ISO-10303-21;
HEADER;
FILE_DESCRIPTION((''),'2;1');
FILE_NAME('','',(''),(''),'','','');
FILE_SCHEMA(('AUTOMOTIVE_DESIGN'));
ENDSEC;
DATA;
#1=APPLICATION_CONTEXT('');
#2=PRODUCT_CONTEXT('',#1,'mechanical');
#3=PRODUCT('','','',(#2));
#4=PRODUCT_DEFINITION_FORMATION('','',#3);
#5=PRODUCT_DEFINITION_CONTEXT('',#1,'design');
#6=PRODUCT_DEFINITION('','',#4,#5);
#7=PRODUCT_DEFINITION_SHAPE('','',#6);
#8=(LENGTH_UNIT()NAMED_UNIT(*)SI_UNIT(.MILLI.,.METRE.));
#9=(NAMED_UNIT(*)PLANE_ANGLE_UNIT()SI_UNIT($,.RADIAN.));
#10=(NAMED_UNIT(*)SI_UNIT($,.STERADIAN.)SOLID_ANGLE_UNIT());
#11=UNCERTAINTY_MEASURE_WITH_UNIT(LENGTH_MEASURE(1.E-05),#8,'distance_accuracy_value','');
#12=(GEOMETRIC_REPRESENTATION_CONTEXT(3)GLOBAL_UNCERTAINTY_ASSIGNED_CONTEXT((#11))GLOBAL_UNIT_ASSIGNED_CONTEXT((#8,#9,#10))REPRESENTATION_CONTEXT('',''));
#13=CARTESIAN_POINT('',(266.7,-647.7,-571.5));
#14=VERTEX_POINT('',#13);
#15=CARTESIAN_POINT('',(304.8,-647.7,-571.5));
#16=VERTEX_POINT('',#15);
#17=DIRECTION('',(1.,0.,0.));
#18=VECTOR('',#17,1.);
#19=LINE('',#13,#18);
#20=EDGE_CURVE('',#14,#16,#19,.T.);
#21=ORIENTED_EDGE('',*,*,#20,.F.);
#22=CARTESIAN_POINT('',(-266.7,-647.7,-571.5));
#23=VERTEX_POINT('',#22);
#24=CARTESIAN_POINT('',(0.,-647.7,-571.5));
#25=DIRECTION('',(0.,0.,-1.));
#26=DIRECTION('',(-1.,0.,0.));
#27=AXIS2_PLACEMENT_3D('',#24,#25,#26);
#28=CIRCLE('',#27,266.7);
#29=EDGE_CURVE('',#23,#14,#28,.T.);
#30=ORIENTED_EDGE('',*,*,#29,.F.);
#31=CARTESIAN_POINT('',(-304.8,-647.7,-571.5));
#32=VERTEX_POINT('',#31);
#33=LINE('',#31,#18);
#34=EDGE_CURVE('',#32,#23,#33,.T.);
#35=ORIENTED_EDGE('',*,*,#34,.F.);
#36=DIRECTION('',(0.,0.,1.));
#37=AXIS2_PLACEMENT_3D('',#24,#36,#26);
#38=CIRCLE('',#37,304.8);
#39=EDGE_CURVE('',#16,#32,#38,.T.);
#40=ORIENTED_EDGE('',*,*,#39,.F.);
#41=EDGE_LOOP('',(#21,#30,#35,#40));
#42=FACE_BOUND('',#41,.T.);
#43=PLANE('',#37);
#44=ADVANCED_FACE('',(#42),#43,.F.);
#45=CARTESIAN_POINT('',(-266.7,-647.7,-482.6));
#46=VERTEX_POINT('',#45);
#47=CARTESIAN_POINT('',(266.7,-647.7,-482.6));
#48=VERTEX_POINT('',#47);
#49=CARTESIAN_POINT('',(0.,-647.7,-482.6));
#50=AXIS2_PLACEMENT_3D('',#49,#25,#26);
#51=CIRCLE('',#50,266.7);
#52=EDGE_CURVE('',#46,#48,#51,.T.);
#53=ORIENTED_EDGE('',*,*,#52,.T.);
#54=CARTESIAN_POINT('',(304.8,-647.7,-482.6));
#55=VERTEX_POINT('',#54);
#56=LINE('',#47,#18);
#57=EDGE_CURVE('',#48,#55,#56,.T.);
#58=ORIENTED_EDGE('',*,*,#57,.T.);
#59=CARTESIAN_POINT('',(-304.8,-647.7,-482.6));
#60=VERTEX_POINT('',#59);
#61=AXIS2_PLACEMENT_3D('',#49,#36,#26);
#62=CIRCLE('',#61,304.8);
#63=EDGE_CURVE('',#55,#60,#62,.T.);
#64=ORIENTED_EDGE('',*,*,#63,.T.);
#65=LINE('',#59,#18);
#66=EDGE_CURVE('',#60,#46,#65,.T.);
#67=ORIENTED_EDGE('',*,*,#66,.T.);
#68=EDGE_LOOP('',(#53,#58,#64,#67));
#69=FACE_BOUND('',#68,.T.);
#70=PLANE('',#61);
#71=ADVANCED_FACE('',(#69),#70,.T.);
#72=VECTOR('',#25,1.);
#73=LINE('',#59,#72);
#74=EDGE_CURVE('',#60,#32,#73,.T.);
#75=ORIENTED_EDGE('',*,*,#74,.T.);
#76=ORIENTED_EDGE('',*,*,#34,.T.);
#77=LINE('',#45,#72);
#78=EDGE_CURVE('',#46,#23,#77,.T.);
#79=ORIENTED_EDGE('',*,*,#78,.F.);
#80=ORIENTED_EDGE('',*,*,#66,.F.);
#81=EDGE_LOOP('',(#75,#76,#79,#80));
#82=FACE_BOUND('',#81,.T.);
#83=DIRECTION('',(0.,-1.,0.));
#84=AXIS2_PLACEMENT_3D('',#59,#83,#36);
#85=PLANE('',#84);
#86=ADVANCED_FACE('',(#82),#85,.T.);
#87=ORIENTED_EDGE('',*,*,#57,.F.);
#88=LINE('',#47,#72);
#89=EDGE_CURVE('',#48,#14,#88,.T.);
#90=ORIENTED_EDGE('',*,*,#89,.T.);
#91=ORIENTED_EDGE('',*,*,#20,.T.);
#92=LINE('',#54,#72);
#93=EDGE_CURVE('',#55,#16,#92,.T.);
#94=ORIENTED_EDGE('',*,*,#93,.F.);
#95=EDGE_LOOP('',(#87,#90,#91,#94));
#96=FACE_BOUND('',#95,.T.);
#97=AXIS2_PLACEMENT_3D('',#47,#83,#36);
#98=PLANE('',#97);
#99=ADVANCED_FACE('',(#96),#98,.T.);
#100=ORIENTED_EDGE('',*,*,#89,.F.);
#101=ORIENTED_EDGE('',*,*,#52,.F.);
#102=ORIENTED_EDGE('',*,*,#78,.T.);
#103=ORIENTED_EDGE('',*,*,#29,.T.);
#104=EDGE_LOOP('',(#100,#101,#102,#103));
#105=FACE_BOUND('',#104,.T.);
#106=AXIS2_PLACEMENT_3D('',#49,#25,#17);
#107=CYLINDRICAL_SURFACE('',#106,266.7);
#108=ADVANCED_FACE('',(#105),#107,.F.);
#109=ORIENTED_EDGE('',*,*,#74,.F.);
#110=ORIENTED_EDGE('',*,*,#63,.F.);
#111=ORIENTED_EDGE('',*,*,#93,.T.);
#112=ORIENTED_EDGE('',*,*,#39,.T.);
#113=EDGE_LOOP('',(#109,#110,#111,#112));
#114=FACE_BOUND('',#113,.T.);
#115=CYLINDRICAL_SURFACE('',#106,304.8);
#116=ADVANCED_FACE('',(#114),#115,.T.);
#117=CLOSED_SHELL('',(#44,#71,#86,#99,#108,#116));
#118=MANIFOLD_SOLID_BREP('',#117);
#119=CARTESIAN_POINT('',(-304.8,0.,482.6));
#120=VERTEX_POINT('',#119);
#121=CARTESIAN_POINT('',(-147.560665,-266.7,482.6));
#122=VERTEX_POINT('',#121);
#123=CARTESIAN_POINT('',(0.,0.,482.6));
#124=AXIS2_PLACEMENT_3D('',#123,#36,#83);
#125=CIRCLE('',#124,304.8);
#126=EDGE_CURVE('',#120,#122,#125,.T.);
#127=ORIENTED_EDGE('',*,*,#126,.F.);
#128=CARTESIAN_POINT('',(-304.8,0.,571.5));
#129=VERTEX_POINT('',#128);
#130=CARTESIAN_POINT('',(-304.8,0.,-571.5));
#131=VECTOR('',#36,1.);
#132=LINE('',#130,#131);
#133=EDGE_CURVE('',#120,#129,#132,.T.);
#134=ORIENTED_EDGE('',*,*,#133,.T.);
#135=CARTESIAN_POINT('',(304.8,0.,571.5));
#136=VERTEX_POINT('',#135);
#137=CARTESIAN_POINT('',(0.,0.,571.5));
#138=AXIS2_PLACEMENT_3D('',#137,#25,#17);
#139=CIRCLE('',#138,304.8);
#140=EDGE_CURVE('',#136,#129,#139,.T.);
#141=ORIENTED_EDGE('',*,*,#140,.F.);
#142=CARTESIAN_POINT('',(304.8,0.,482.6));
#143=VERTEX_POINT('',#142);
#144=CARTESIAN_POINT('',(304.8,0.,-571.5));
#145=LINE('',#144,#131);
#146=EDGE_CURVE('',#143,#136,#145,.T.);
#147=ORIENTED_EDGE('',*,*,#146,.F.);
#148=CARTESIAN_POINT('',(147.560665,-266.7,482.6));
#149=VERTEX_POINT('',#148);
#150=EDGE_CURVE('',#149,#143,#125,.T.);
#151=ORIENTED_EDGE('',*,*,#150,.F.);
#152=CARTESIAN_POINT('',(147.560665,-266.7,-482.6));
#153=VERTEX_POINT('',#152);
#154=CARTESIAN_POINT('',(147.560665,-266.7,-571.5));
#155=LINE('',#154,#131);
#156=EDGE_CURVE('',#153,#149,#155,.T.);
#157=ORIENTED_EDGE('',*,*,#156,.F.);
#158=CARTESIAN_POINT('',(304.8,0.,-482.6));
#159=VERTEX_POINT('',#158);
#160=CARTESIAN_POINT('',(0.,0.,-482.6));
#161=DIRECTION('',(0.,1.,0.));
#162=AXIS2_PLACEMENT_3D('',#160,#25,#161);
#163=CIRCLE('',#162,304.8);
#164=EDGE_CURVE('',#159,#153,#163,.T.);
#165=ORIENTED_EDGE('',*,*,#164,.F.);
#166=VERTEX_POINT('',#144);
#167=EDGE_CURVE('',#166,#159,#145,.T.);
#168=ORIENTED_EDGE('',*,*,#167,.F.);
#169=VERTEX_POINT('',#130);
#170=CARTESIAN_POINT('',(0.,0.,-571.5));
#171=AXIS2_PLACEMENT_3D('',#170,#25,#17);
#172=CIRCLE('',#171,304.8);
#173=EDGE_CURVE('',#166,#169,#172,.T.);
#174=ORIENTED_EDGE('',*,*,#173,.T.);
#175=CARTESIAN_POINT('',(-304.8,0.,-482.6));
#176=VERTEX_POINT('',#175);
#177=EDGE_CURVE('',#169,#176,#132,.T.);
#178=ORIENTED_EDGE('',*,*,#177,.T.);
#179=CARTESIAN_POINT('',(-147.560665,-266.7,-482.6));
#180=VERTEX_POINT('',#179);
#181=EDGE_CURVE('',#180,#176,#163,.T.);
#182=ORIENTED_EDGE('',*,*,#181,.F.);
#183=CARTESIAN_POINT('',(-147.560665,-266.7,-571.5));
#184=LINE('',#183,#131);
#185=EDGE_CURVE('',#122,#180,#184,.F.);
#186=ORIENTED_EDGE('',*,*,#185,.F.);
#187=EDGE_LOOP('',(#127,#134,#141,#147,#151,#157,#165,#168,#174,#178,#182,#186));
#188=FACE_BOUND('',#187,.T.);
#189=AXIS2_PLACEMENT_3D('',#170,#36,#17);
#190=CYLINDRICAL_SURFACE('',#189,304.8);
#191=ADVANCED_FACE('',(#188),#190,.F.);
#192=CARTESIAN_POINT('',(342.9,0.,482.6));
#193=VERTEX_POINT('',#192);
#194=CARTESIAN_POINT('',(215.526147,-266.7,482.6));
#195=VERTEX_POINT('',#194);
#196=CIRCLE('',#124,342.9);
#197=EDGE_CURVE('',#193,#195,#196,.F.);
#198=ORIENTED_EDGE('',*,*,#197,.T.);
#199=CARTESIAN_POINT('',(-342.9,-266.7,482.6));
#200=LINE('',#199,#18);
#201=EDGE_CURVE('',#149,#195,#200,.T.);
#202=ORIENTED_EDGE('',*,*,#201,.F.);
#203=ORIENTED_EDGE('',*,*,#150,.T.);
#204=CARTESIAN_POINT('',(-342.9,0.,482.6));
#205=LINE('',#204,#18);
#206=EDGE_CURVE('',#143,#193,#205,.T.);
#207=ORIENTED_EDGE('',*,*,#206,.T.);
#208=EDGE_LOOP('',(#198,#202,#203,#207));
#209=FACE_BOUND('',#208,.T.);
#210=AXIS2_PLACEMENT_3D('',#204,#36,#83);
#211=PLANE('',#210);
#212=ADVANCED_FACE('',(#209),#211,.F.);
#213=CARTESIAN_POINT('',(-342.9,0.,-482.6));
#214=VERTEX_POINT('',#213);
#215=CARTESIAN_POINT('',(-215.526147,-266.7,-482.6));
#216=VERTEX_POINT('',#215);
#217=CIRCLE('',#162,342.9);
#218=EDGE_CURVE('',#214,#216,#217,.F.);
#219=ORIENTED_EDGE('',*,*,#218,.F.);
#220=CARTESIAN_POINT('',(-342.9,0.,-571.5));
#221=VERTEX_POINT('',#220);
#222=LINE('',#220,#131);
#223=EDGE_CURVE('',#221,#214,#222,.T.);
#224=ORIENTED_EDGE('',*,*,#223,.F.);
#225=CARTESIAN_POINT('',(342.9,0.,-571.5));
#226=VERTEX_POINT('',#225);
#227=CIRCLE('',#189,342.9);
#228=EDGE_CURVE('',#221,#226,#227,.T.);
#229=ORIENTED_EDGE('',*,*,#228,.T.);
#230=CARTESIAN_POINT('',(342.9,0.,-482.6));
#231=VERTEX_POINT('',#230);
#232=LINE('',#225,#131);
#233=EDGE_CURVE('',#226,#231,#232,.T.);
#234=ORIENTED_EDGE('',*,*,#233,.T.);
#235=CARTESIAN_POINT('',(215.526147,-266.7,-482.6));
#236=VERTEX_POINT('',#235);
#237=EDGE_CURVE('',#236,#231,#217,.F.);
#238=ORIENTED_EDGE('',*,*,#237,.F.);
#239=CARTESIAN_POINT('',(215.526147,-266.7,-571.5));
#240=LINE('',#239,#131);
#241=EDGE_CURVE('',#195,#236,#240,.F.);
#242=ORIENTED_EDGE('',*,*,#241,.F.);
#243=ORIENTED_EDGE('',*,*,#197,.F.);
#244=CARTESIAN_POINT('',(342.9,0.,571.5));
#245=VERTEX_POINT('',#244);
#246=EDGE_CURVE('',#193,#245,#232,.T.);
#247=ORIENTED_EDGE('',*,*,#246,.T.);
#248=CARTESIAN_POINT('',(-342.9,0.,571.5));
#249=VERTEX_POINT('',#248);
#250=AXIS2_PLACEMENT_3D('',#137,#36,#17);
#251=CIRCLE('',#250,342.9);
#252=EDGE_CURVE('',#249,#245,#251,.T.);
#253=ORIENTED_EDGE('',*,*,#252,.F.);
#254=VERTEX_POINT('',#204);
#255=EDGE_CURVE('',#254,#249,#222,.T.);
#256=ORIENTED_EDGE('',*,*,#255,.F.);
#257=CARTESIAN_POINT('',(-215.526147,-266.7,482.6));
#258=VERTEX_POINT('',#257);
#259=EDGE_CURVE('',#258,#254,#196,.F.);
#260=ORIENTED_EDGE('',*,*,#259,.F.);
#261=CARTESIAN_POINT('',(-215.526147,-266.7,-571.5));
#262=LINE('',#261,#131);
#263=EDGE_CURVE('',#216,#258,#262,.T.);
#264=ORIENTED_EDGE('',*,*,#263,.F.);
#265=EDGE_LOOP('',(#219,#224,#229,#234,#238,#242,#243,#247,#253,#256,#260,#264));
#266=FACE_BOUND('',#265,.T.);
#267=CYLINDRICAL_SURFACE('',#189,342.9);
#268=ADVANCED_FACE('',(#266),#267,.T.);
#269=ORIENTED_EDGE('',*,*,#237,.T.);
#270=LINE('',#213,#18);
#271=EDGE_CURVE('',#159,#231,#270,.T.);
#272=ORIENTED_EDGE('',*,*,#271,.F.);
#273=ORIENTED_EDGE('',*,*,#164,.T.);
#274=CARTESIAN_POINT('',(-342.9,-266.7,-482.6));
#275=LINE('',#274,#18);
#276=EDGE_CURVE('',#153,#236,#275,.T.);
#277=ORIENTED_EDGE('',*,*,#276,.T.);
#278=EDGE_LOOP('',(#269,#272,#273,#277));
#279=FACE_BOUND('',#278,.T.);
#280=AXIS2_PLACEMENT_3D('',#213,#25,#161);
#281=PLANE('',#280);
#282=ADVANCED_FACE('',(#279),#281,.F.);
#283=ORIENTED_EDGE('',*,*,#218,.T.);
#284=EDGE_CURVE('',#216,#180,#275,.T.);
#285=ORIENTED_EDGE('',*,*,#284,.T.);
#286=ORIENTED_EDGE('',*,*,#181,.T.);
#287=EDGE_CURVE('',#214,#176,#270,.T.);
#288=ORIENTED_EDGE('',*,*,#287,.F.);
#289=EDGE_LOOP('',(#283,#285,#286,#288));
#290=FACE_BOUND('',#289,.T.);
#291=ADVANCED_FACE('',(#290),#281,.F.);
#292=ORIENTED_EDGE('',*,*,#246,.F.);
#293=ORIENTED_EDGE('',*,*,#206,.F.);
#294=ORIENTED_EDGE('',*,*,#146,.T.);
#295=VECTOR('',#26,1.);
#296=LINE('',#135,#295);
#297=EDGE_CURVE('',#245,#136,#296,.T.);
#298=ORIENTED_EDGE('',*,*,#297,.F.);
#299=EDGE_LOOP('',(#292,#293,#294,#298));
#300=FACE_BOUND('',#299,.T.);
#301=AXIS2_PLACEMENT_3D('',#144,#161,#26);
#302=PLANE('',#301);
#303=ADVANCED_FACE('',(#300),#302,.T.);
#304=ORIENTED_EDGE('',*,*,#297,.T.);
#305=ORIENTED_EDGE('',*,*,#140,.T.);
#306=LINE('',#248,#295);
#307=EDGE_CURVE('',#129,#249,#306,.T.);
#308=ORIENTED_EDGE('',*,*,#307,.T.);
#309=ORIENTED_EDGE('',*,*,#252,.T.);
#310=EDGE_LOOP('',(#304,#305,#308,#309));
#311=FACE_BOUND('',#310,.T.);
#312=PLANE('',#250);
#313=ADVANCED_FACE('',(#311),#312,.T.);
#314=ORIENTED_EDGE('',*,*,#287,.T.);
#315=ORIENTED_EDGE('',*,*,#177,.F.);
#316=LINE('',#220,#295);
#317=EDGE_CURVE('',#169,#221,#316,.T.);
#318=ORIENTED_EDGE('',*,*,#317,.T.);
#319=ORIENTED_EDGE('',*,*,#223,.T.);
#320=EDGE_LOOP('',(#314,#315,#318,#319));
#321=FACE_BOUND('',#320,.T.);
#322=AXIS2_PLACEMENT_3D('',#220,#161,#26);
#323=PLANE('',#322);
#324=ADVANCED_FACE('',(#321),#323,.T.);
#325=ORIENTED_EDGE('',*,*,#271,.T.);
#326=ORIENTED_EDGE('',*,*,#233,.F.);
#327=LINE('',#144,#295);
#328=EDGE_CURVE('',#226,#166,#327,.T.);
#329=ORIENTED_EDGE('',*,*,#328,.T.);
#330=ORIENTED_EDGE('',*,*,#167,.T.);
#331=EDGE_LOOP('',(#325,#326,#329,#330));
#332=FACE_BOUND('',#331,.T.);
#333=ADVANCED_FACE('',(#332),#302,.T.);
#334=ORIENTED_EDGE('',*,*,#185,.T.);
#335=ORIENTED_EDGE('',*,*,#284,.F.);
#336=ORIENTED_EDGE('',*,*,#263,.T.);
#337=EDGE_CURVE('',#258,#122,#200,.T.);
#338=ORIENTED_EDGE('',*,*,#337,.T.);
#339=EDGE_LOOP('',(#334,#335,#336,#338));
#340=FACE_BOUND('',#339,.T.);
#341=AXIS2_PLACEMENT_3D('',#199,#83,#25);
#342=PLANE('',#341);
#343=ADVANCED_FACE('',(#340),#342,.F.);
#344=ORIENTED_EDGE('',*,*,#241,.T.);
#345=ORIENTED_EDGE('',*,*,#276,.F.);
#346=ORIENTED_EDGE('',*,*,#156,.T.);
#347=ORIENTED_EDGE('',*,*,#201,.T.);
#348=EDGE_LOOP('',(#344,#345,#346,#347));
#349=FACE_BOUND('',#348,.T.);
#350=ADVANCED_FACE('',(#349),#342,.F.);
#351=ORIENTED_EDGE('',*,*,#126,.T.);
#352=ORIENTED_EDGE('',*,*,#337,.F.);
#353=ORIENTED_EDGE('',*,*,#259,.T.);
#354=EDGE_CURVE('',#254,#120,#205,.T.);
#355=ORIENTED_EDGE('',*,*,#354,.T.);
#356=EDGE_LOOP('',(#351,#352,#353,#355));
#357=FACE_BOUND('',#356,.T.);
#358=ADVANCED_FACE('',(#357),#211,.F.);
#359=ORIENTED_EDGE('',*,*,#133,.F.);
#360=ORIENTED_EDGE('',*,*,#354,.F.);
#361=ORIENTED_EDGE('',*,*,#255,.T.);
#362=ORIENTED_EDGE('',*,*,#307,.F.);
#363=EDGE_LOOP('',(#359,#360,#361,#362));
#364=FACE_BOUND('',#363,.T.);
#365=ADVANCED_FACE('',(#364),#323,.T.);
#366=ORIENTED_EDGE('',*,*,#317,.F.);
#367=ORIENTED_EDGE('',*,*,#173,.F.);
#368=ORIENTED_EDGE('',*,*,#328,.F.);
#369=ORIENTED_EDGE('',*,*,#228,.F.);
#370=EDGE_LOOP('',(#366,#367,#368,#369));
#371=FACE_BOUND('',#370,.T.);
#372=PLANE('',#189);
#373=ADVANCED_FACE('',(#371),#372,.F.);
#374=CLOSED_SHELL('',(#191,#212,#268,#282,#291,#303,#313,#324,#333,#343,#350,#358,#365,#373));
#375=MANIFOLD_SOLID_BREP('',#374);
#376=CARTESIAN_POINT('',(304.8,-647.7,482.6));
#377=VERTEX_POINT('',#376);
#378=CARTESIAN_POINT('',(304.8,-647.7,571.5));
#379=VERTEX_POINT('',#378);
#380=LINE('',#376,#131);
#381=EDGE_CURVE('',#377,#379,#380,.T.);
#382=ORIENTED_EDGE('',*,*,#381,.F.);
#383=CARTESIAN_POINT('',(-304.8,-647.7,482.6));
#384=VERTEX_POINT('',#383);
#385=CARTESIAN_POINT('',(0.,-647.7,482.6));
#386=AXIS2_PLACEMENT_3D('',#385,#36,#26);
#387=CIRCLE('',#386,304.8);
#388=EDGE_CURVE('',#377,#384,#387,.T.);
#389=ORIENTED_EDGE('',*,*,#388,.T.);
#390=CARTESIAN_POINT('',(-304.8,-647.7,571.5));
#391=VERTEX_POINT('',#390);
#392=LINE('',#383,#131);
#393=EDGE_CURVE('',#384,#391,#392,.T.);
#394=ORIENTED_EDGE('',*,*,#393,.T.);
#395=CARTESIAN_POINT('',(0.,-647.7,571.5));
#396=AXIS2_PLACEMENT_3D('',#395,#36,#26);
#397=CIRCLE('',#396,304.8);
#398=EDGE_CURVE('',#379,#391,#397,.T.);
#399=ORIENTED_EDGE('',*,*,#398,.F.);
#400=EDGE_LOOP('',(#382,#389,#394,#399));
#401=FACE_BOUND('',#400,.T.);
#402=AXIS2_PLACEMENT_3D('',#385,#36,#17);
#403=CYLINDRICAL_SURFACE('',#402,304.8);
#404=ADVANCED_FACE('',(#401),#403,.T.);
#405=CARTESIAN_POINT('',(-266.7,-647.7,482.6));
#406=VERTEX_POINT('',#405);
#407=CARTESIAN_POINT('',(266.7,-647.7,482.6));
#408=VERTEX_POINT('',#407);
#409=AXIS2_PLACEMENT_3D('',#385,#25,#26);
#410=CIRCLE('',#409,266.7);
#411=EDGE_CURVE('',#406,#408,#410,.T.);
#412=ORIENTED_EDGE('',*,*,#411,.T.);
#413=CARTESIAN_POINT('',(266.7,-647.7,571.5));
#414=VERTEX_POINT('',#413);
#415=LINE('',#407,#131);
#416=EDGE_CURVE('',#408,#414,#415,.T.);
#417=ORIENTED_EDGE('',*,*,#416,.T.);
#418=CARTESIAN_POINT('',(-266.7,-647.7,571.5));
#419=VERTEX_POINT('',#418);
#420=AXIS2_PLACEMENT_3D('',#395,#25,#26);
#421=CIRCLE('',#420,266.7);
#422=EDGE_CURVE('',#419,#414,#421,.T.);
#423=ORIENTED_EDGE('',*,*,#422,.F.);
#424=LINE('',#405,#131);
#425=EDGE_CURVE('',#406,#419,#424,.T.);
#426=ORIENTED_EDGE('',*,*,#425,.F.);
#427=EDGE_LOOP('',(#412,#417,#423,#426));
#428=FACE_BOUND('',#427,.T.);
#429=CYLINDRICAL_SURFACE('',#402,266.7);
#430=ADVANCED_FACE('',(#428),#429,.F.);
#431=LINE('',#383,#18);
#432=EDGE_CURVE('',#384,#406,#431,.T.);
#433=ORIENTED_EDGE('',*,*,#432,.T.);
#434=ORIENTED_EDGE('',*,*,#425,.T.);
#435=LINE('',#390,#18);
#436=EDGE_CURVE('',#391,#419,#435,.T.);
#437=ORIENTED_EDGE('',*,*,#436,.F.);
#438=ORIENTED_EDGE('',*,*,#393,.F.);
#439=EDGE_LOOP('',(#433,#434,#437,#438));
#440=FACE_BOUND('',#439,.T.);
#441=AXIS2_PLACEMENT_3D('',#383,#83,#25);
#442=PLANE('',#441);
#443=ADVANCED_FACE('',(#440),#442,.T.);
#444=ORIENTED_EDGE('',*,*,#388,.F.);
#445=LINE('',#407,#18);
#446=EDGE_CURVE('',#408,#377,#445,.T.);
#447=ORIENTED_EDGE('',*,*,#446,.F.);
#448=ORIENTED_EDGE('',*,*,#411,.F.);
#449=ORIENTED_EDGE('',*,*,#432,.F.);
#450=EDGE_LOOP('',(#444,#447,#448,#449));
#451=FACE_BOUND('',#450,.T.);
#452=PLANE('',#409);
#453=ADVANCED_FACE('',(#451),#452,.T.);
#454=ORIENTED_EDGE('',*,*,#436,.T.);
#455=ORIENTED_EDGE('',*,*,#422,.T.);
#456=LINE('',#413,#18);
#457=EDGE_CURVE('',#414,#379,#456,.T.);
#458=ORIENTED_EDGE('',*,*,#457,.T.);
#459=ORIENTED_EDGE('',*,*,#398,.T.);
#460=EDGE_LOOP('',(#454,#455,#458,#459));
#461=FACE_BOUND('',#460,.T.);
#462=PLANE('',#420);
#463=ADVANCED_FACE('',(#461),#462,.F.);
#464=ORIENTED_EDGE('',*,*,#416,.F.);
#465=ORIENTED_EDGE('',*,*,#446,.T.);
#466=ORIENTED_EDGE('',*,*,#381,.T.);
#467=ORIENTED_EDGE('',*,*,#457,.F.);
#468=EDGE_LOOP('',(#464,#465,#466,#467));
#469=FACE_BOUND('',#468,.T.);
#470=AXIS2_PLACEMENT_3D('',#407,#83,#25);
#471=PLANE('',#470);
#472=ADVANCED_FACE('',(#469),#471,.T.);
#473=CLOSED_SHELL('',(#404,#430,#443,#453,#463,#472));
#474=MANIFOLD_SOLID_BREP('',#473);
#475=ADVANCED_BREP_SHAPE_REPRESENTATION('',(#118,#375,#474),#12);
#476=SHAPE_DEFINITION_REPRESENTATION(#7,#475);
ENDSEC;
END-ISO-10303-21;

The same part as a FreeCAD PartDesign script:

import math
import FreeCAD as App
import Part
import Sketcher

V = App.Vector
Q = App.Units.Quantity

doc = App.newDocument("Part")
body = doc.addObject("PartDesign::Body", "Body")

sketch1 = body.newObject("Sketcher::SketchObject", "Sketch")
sketch1.AttachmentSupport = (doc.getObject("XY_Plane"), [""])
sketch1.MapMode = "FlatFace"
sketch1.addGeometry([
    Part.LineSegment(V(-305, 0, 0), V(-343, 0, 0)),
    Part.ArcOfCircle(Part.Circle(V(0, 0, 0), V(0, 0, 1), 343), math.radians(180), math.radians(360)),
    Part.LineSegment(V(343, 0, 0), V(305, 0, 0)),
    Part.ArcOfCircle(Part.Circle(V(0, 0, 0), V(0, 0, 1), 305), math.radians(180), math.radians(360)),
], False)
sketch1.addConstraint([
    Sketcher.Constraint("Coincident", 0, 2, 1, 1),
    Sketcher.Constraint("Coincident", 1, 2, 2, 1),
    Sketcher.Constraint("Coincident", 2, 2, 3, 2),
    Sketcher.Constraint("Coincident", 3, 1, 0, 1),
    Sketcher.Constraint("Horizontal", 0),
    Sketcher.Constraint("Horizontal", 2),
    Sketcher.Constraint("Coincident", 1, 3, -1, 1),
    Sketcher.Constraint("Coincident", 3, 3, -1, 1),
    Sketcher.Constraint("PointOnObject", 0, 2, -1),
    Sketcher.Constraint("PointOnObject", 1, 2, -1),
    Sketcher.Constraint("Radius", 3, Q("12 in")),
    Sketcher.Constraint("Radius", 1, Q("13.5 in")),
])
pad1 = body.newObject("PartDesign::Pad", "Pad")
pad1.Profile = sketch1
pad1.Length = Q("45 in")
pad1.Midplane = True

sketch2 = body.newObject("Sketcher::SketchObject", "Sketch001")
sketch2.AttachmentSupport = (doc.getObject("YZ_Plane"), [""])
sketch2.MapMode = "FlatFace"
sketch2.addGeometry([
    Part.LineSegment(V(0, 483, 0), V(-267, 483, 0)),
    Part.LineSegment(V(-267, 483, 0), V(-267, -483, 0)),
    Part.LineSegment(V(-267, -483, 0), V(0, -483, 0)),
    Part.LineSegment(V(0, -483, 0), V(0, 483, 0)),
], False)
sketch2.addConstraint([
    Sketcher.Constraint("Coincident", 0, 2, 1, 1),
    Sketcher.Constraint("Coincident", 1, 2, 2, 1),
    Sketcher.Constraint("Coincident", 2, 2, 3, 1),
    Sketcher.Constraint("Coincident", 3, 2, 0, 1),
    Sketcher.Constraint("Horizontal", 0),
    Sketcher.Constraint("Vertical", 1),
    Sketcher.Constraint("Horizontal", 2),
    Sketcher.Constraint("Vertical", 3),
    Sketcher.Constraint("Symmetric", 2, 2, 3, 2, -1, 1),
    Sketcher.Constraint("DistanceY", 1, 2, 1, 1, Q("38 in")),
    Sketcher.Constraint("DistanceX", 0, 2, 0, 1, Q("10.5 in")),
])
pocket1 = body.newObject("PartDesign::Pocket", "Pocket")
pocket1.Profile = sketch2
pocket1.Type = "ThroughAll"
pocket1.Midplane = True
body2 = doc.addObject("PartDesign::Body", "Body001")

sketch3 = body2.newObject("Sketcher::SketchObject", "Sketch002")
sketch3.AttachmentSupport = (doc.getObject("XY_Plane001"), [""])
sketch3.MapMode = "FlatFace"
sketch3.AttachmentOffset = App.Placement(V(0, 0, 22.5 * 25.4), App.Rotation())
sketch3.addGeometry([
    Part.LineSegment(V(-305, -648, 0), V(-267, -648, 0)),
    Part.ArcOfCircle(Part.Circle(V(0, -648, 0), V(0, 0, 1), 267), math.radians(0), math.radians(180)),
    Part.LineSegment(V(267, -648, 0), V(305, -648, 0)),
    Part.ArcOfCircle(Part.Circle(V(0, -648, 0), V(0, 0, 1), 305), math.radians(0), math.radians(180)),
], False)
sketch3.addConstraint([
    Sketcher.Constraint("Coincident", 0, 2, 1, 2),
    Sketcher.Constraint("Coincident", 1, 1, 2, 1),
    Sketcher.Constraint("Coincident", 2, 2, 3, 1),
    Sketcher.Constraint("Coincident", 3, 2, 0, 1),
    Sketcher.Constraint("Horizontal", 0),
    Sketcher.Constraint("Horizontal", 2),
    Sketcher.Constraint("Coincident", 3, 3, 1, 3),
    Sketcher.Constraint("Symmetric", 0, 2, 1, 1, -2),
    Sketcher.Constraint("Horizontal", 3, 3, 0, 2),
    Sketcher.Constraint("Radius", 3, Q("12 in")),
    Sketcher.Constraint("Radius", 1, Q("10.5 in")),
    Sketcher.Constraint("DistanceY", 1, 3, -1, 1, Q("25.5 in")),
])
pad2 = body2.newObject("PartDesign::Pad", "Pad001")
pad2.Profile = sketch3
pad2.Length = Q("3.5 in")
pad2.Reversed = True
body3 = doc.addObject("PartDesign::Body", "Body002")
doc.recompute()

mirroring = doc.addObject("Part::Mirroring", "Mirroring")
mirroring.Source = body2
mirroring.Base = V(0, 0, 0)
mirroring.Normal = V(0, 0, 1)
body3.BaseFeature = mirroring
doc.recompute()
mirroring.Visibility = False

doc.recompute()
